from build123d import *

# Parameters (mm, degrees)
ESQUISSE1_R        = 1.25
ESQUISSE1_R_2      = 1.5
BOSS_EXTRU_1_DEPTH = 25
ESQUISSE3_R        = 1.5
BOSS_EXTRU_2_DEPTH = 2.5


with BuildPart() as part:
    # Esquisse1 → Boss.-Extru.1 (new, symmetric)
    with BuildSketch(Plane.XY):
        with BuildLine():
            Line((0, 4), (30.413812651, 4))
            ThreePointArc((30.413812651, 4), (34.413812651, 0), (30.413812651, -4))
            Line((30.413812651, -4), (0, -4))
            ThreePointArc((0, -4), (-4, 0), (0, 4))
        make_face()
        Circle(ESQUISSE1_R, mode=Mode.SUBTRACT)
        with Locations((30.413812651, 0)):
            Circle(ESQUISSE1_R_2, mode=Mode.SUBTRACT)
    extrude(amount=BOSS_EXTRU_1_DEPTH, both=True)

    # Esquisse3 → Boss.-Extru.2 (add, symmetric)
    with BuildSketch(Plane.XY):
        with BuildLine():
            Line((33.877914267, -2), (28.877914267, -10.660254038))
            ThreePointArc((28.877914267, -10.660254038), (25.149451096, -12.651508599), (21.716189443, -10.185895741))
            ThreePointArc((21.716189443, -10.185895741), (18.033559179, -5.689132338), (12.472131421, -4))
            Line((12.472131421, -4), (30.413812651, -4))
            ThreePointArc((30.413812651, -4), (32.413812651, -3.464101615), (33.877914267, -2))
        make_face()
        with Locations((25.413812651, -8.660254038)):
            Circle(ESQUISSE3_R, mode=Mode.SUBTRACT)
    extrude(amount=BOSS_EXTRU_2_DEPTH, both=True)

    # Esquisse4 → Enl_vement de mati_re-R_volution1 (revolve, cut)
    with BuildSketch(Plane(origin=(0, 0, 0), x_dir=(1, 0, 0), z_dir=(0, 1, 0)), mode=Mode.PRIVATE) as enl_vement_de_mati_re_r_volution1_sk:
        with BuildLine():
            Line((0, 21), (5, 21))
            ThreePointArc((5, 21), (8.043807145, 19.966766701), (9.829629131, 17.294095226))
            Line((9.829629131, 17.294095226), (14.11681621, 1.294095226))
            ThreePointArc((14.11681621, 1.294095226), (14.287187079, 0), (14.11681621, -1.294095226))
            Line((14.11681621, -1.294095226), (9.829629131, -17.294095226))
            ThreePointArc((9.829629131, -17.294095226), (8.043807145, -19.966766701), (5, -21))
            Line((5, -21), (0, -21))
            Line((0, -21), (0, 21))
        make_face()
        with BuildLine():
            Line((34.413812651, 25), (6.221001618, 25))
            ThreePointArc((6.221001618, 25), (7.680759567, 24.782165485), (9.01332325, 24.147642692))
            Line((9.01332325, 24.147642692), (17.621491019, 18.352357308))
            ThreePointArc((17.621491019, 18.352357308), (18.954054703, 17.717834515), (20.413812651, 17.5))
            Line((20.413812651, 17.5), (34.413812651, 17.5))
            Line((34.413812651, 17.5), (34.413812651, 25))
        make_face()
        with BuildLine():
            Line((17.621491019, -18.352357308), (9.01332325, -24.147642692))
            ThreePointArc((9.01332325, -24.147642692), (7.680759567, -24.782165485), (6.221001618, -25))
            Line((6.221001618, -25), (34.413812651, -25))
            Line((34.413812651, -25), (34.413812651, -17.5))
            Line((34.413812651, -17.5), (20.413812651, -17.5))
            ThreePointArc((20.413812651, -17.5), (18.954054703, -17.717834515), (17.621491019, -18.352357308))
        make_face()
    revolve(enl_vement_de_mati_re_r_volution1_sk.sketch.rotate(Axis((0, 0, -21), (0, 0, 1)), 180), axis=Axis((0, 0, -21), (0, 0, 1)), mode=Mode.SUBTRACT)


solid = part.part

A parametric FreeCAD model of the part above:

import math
import FreeCAD as App
import Part
import Sketcher
Q = App.Units.Quantity

doc = App.newDocument("Part")
body = doc.addObject("PartDesign::Body", "Body")

# Sketch on XY plane
sketch1 = body.newObject("Sketcher::SketchObject", "Sketch")
sketch1.AttachmentSupport = (doc.getObject("XY_Plane"), [""])
sketch1.MapMode = "FlatFace"
sketch1.addGeometry([
    Part.LineSegment(App.Vector(30.413813, 4, 0), App.Vector(0, 4, 0)),  # 0
    Part.ArcOfCircle(Part.Circle(App.Vector(0, 0, 0), App.Vector(0, 0, 1), 4), math.radians(90), math.radians(270)),  # 1
    Part.LineSegment(App.Vector(0, -4, 0), App.Vector(30.413813, -4, 0)),  # 2
    Part.ArcOfCircle(Part.Circle(App.Vector(30.413813, 0, 0), App.Vector(0, 0, 1), 4), math.radians(-90), math.radians(90)),  # 3
    Part.Circle(App.Vector(30.413813, 0, 0), App.Vector(0, 0, 1), 1.5),  # 4
    Part.Circle(App.Vector(0, 0, 0), App.Vector(0, 0, 1), 1.25),  # 5
], False)
sketch1.addConstraint([
    Sketcher.Constraint("Tangent", 0, 2, 1, 1),
    Sketcher.Constraint("Tangent", 1, 2, 2, 1),
    Sketcher.Constraint("Tangent", 2, 2, 3, 1),
    Sketcher.Constraint("Tangent", 3, 2, 0, 1),
    Sketcher.Constraint("Horizontal", 0),
    Sketcher.Constraint("Horizontal", 2),
    Sketcher.Constraint("Coincident", 1, 3, -1, 1),
    Sketcher.Constraint("Coincident", 5, 3, -1, 1),
    Sketcher.Constraint("Coincident", 4, 3, 3, 3),
    Sketcher.Constraint("Diameter", 4, Q("3 mm")),
    Sketcher.Constraint("Radius", 1, Q("4 mm")),
    Sketcher.Constraint("Diameter", 5, Q("2.5 mm")),
    Sketcher.Constraint("DistanceX", 0, 2, 0, 1, Q("30.413813 mm")),
])
pad1 = body.newObject("PartDesign::Pad", "Pad")
pad1.Profile = sketch1
pad1.Length = 50
pad1.Midplane = True

# Sketch on XY plane
sketch2 = body.newObject("Sketcher::SketchObject", "Sketch001")
sketch2.AttachmentSupport = (doc.getObject("XY_Plane"), [""])
sketch2.MapMode = "FlatFace"
sketch2.addGeometry([
    Part.LineSegment(App.Vector(28.877914, -10.660254, 0), App.Vector(33.877914, -2, 0)),  # 0
    Part.ArcOfCircle(Part.Circle(App.Vector(30.413813, 0, 0), App.Vector(0, 0, 1), 4), math.radians(-90), math.radians(-30)),  # 1
    Part.LineSegment(App.Vector(30.413813, -4, 0), App.Vector(12.472131, -4, 0)),  # 2
    Part.ArcOfCircle(Part.Circle(App.Vector(12.472131, -14, 0), App.Vector(0, 0, 1), 10), math.radians(22.421075), math.radians(90)),  # 3
    Part.ArcOfCircle(Part.Circle(App.Vector(25.413813, -8.660254, 0), App.Vector(0, 0, 1), 4), math.radians(-157.578925), math.radians(-30)),  # 4
    Part.Circle(App.Vector(25.413813, -8.660254, 0), App.Vector(0, 0, 1), 1.5),  # 5
], False)
sketch2.addConstraint([
    Sketcher.Constraint("Tangent", 0, 2, 1, 2),
    Sketcher.Constraint("Tangent", 1, 1, 2, 1),
    Sketcher.Constraint("Tangent", 2, 2, 3, 2),
    Sketcher.Constraint("Tangent", 3, 1, 4, 1),
    Sketcher.Constraint("Tangent", 4, 2, 0, 1),
    Sketcher.Constraint("Horizontal", 2),
    Sketcher.Constraint("Coincident", 5, 3, 4, 3),
    Sketcher.Constraint("Equal", 1, 4),
    Sketcher.Constraint("PointOnObject", 1, 3, -1),
    Sketcher.Constraint("Diameter", 5, Q("3 mm")),
    Sketcher.Constraint("Radius", 1, Q("4 mm")),
    Sketcher.Constraint("Radius", 3, Q("10 mm")),
    Sketcher.Constraint("Angle", 0, Q("60 deg")),
    Sketcher.Constraint("Distance", 0, Q("10 mm")),
    Sketcher.Constraint("DistanceX", -1, 1, 3, 3, Q("12.472131 mm")),
])
pad2 = body.newObject("PartDesign::Pad", "Pad001")
pad2.Profile = sketch2
pad2.Length = 5
pad2.Midplane = True

# Sketch on XZ plane
sketch3 = body.newObject("Sketcher::SketchObject", "Sketch002")
sketch3.AttachmentSupport = (doc.getObject("XZ_Plane"), [""])
sketch3.MapMode = "FlatFace"
sketch3.addGeometry([
    Part.LineSegment(App.Vector(5, -21, 0), App.Vector(0, -21, 0)),  # 0
    Part.LineSegment(App.Vector(0, -21, 0), App.Vector(0, 21, 0)),  # 1
    Part.LineSegment(App.Vector(0, 21, 0), App.Vector(5, 21, 0)),  # 2
    Part.ArcOfCircle(Part.Circle(App.Vector(5, 16, 0), App.Vector(0, 0, 1), 5), math.radians(15), math.radians(90)),  # 3
    Part.LineSegment(App.Vector(9.829629, 17.294095, 0), App.Vector(14.116816, 1.294095, 0)),  # 4
    Part.ArcOfCircle(Part.Circle(App.Vector(9.287187, 0, 0), App.Vector(0, 0, 1), 5), math.radians(-15), math.radians(15)),  # 5
    Part.LineSegment(App.Vector(14.116816, -1.294095, 0), App.Vector(9.829629, -17.294095, 0)),  # 6
    Part.ArcOfCircle(Part.Circle(App.Vector(5, -16, 0), App.Vector(0, 0, 1), 5), math.radians(-90), math.radians(-15)),  # 7
    Part.LineSegment(App.Vector(34.413813, -25, 0), App.Vector(6.221002, -25, 0)),  # 8
    Part.ArcOfCircle(Part.Circle(App.Vector(6.221002, -20, 0), App.Vector(0, 0, 1), 5), math.radians(-90), math.radians(-56.050338)),  # 9
    Part.LineSegment(App.Vector(9.013323, -24.147643, 0), App.Vector(17.621491, -18.352357, 0)),  # 10
    Part.ArcOfCircle(Part.Circle(App.Vector(20.413813, -22.5, 0), App.Vector(0, 0, 1), 5), math.radians(90), math.radians(123.949662)),  # 11
    Part.LineSegment(App.Vector(20.413813, -17.5, 0), App.Vector(34.413813, -17.5, 0)),  # 12
    Part.LineSegment(App.Vector(34.413813, -17.5, 0), App.Vector(34.413813, -25, 0)),  # 13
    Part.LineSegment(App.Vector(17.621491, 18.352357, 0), App.Vector(9.013323, 24.147643, 0)),  # 14
    Part.ArcOfCircle(Part.Circle(App.Vector(6.221002, 20, 0), App.Vector(0, 0, 1), 5), math.radians(56.050338), math.radians(90)),  # 15
    Part.LineSegment(App.Vector(6.221002, 25, 0), App.Vector(34.413813, 25, 0)),  # 16
    Part.LineSegment(App.Vector(34.413813, 25, 0), App.Vector(34.413813, 17.5, 0)),  # 17
    Part.LineSegment(App.Vector(34.413813, 17.5, 0), App.Vector(20.413813, 17.5, 0)),  # 18
    Part.ArcOfCircle(Part.Circle(App.Vector(20.413813, 22.5, 0), App.Vector(0, 0, 1), 5), math.radians(-123.949662), math.radians(-90)),  # 19
], False)
sketch3.addConstraint([
    Sketcher.Constraint("Coincident", 0, 2, 1, 1),
    Sketcher.Constraint("Coincident", 1, 2, 2, 1),
    Sketcher.Constraint("Tangent", 2, 2, 3, 2),
    Sketcher.Constraint("Tangent", 3, 1, 4, 1),
    Sketcher.Constraint("Tangent", 4, 2, 5, 2),
    Sketcher.Constraint("Tangent", 5, 1, 6, 1),
    Sketcher.Constraint("Tangent", 6, 2, 7, 2),
    Sketcher.Constraint("Tangent", 7, 1, 0, 1),
    Sketcher.Constraint("Tangent", 8, 2, 9, 1),
    Sketcher.Constraint("Tangent", 9, 2, 10, 1),
    Sketcher.Constraint("Tangent", 10, 2, 11, 2),
    Sketcher.Constraint("Tangent", 11, 1, 12, 1),
    Sketcher.Constraint("Coincident", 12, 2, 13, 1),
    Sketcher.Constraint("Coincident", 13, 2, 8, 1),
    Sketcher.Constraint("Tangent", 14, 2, 15, 1),
    Sketcher.Constraint("Tangent", 15, 2, 16, 1),
    Sketcher.Constraint("Coincident", 16, 2, 17, 1),
    Sketcher.Constraint("Coincident", 17, 2, 18, 1),
    Sketcher.Constraint("Tangent", 18, 2, 19, 2),
    Sketcher.Constraint("Tangent", 19, 1, 14, 1),
    Sketcher.Constraint("Horizontal", 0),
    Sketcher.Constraint("Vertical", 1),
    Sketcher.Constraint("Horizontal", 2),
    Sketcher.Constraint("Horizontal", 8),
    Sketcher.Constraint("Horizontal", 12),
    Sketcher.Constraint("Vertical", 13),
    Sketcher.Constraint("Horizontal", 16),
    Sketcher.Constraint("Vertical", 17),
    Sketcher.Constraint("Horizontal", 18),
    Sketcher.Constraint("Equal", 3, 5),
    Sketcher.Constraint("Equal", 5, 7),
    Sketcher.Constraint("Equal", 7, 9),
    Sketcher.Constraint("Equal", 9, 11),
    Sketcher.Constraint("Equal", 11, 15),
    Sketcher.Constraint("Equal", 15, 19),
    Sketcher.Constraint("Symmetric", 0, 2, 1, 2, -1, 1),
    Sketcher.Constraint("Symmetric", 9, 3, 15, 3, -1),
    Sketcher.Constraint("Symmetric", 11, 3, 19, 3, -1),
    Sketcher.Constraint("Symmetric", 4, 2, 5, 1, -1),
    Sketcher.Constraint("Vertical", 13, 2, 16, 2),
    Sketcher.Constraint("Radius", 3, Q("5 mm")),
    Sketcher.Constraint("DistanceX", 0, 2, 0, 1, Q("5 mm")),
    Sketcher.Constraint("DistanceX", 12, 1, 12, 2, Q("14 mm")),
    Sketcher.Constraint("DistanceY", 1, 1, 1, 2, Q("42 mm")),
    Sketcher.Constraint("Angle", 4, Q("-75 deg")),
    Sketcher.Constraint("DistanceY", 13, 2, 13, 1, Q("7.5 mm")),
    Sketcher.Constraint("DistanceY", 9, 3, -1, 1, Q("20 mm")),
    Sketcher.Constraint("DistanceX", -1, 1, 9, 3, Q("6.221002 mm")),
    Sketcher.Constraint("DistanceX", 8, 2, 8, 1, Q("28.192811 mm")),
])
groove = body.newObject("PartDesign::Groove", "Groove")
groove.Profile = sketch3
groove.ReferenceAxis = (sketch3, ["V_Axis"])
groove.Angle = 360

doc.recompute()
